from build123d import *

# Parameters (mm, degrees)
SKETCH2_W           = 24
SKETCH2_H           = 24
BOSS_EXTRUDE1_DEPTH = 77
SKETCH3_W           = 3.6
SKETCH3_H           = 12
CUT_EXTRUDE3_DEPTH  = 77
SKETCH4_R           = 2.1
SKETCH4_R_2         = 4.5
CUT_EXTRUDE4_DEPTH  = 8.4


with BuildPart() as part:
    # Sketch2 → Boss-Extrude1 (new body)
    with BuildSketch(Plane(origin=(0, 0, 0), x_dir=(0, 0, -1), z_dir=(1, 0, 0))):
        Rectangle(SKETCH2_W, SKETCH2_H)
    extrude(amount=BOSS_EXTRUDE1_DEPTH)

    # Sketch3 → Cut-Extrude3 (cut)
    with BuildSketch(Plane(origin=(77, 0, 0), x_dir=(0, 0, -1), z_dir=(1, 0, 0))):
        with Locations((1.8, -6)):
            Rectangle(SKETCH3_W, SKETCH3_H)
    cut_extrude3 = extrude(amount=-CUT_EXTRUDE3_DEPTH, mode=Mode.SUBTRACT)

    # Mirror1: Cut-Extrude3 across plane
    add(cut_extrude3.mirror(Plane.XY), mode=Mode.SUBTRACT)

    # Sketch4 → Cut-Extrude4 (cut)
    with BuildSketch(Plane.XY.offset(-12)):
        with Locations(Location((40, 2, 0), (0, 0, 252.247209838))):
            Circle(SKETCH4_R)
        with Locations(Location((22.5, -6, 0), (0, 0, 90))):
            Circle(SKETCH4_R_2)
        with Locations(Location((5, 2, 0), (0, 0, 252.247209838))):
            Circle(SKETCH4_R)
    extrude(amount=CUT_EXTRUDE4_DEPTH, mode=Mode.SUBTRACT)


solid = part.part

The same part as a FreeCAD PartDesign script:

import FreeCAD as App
import Part
import Sketcher
Q = App.Units.Quantity

doc = App.newDocument("Part")
body = doc.addObject("PartDesign::Body", "Body")

# Sketch on YZ plane
sketch1 = body.newObject("Sketcher::SketchObject", "Sketch")
sketch1.AttachmentSupport = (doc.getObject("YZ_Plane"), [""])
sketch1.MapMode = "FlatFace"
sketch1.addGeometry([
    Part.LineSegment(App.Vector(12, 12, 0), App.Vector(-12, 12, 0)),
    Part.LineSegment(App.Vector(-12, 12, 0), App.Vector(-12, -12, 0)),
    Part.LineSegment(App.Vector(-12, -12, 0), App.Vector(12, -12, 0)),
    Part.LineSegment(App.Vector(12, -12, 0), App.Vector(12, 12, 0)),
], False)
sketch1.addConstraint([
    Sketcher.Constraint("Coincident", 0, 2, 1, 1),
    Sketcher.Constraint("Coincident", 1, 2, 2, 1),
    Sketcher.Constraint("Coincident", 2, 2, 3, 1),
    Sketcher.Constraint("Coincident", 3, 2, 0, 1),
    Sketcher.Constraint("Horizontal", 0),
    Sketcher.Constraint("Vertical", 1),
    Sketcher.Constraint("Horizontal", 2),
    Sketcher.Constraint("Vertical", 3),
    Sketcher.Constraint("Symmetric", 0, 2, 2, 2, -1, 1),
    Sketcher.Constraint("Equal", 2, 1),
    Sketcher.Constraint("DistanceX", 0, 2, 0, 1, Q("24 mm")),
])
pad1 = body.newObject("PartDesign::Pad", "Pad")
pad1.Profile = sketch1
pad1.Length = 77

# Sketch on YZ plane
sketch2 = body.newObject("Sketcher::SketchObject", "Sketch001")
sketch2.AttachmentSupport = (doc.getObject("YZ_Plane"), [""])
sketch2.MapMode = "FlatFace"
sketch2.AttachmentOffset = App.Placement(App.Vector(0, 0, 77), App.Rotation())
sketch2.addGeometry([
    Part.LineSegment(App.Vector(0, 0, 0), App.Vector(-12, 0, 0)),
    Part.LineSegment(App.Vector(-12, 0, 0), App.Vector(-12, -3.6, 0)),
    Part.LineSegment(App.Vector(-12, -3.6, 0), App.Vector(0, -3.6, 0)),
    Part.LineSegment(App.Vector(0, -3.6, 0), App.Vector(0, 0, 0)),
], False)
sketch2.addConstraint([
    Sketcher.Constraint("Coincident", 0, 2, 1, 1),
    Sketcher.Constraint("Coincident", 1, 2, 2, 1),
    Sketcher.Constraint("Coincident", 2, 2, 3, 1),
    Sketcher.Constraint("Coincident", 3, 2, 0, 1),
    Sketcher.Constraint("Horizontal", 0),
    Sketcher.Constraint("Vertical", 1),
    Sketcher.Constraint("Horizontal", 2),
    Sketcher.Constraint("Vertical", 3),
    Sketcher.Constraint("Coincident", 3, 2, -1, 1),
    Sketcher.Constraint("DistanceX", 0, 2, 0, 1, Q("12 mm")),
    Sketcher.Constraint("DistanceY", 1, 2, 1, 1, Q("3.6 mm")),
])
pocket1 = body.newObject("PartDesign::Pocket", "Pocket")
pocket1.Profile = sketch2
pocket1.Length = 77
doc.recompute()

mirrored = body.newObject("PartDesign::Mirrored", "Mirrored")
mirrored.Originals = [pocket1]
mirrored.MirrorPlane = (doc.getObject("XY_Plane"), [""])
body.Tip = mirrored

# Sketch on XY plane
sketch3 = body.newObject("Sketcher::SketchObject", "Sketch002")
sketch3.AttachmentSupport = (doc.getObject("XY_Plane"), [""])
sketch3.MapMode = "FlatFace"
sketch3.AttachmentOffset = App.Placement(App.Vector(0, 0, -12), App.Rotation())
sketch3.addGeometry([
    Part.Circle(App.Vector(40, 2, 0), App.Vector(0, 0, 1), 2.1),
    Part.Circle(App.Vector(22.5, -6, 0), App.Vector(0, 0, 1), 4.5),
    Part.Circle(App.Vector(5, 2, 0), App.Vector(0, 0, 1), 2.1),
], False)
sketch3.addConstraint([
    Sketcher.Constraint("Equal", 0, 2),
    Sketcher.Constraint("Horizontal", 0, 3, 2, 3),
    Sketcher.Constraint("Diameter", 1, Q("9 mm")),
    Sketcher.Constraint("Diameter", 0, Q("4.2 mm")),
    Sketcher.Constraint("DistanceX", -1, 1, 0, 3, Q("40 mm")),
    Sketcher.Constraint("DistanceY", -1, 1, 0, 3, Q("2 mm")),
    Sketcher.Constraint("DistanceY", 1, 3, -1, 1, Q("6 mm")),
    Sketcher.Constraint("DistanceX", -1, 1, 2, 3, Q("5 mm")),
    Sketcher.Constraint("DistanceX", -1, 1, 1, 3, Q("22.5 mm")),
])
pocket2 = body.newObject("PartDesign::Pocket", "Pocket001")
pocket2.Profile = sketch3
pocket2.Length = 8.4
pocket2.Reversed = True

doc.recompute()
